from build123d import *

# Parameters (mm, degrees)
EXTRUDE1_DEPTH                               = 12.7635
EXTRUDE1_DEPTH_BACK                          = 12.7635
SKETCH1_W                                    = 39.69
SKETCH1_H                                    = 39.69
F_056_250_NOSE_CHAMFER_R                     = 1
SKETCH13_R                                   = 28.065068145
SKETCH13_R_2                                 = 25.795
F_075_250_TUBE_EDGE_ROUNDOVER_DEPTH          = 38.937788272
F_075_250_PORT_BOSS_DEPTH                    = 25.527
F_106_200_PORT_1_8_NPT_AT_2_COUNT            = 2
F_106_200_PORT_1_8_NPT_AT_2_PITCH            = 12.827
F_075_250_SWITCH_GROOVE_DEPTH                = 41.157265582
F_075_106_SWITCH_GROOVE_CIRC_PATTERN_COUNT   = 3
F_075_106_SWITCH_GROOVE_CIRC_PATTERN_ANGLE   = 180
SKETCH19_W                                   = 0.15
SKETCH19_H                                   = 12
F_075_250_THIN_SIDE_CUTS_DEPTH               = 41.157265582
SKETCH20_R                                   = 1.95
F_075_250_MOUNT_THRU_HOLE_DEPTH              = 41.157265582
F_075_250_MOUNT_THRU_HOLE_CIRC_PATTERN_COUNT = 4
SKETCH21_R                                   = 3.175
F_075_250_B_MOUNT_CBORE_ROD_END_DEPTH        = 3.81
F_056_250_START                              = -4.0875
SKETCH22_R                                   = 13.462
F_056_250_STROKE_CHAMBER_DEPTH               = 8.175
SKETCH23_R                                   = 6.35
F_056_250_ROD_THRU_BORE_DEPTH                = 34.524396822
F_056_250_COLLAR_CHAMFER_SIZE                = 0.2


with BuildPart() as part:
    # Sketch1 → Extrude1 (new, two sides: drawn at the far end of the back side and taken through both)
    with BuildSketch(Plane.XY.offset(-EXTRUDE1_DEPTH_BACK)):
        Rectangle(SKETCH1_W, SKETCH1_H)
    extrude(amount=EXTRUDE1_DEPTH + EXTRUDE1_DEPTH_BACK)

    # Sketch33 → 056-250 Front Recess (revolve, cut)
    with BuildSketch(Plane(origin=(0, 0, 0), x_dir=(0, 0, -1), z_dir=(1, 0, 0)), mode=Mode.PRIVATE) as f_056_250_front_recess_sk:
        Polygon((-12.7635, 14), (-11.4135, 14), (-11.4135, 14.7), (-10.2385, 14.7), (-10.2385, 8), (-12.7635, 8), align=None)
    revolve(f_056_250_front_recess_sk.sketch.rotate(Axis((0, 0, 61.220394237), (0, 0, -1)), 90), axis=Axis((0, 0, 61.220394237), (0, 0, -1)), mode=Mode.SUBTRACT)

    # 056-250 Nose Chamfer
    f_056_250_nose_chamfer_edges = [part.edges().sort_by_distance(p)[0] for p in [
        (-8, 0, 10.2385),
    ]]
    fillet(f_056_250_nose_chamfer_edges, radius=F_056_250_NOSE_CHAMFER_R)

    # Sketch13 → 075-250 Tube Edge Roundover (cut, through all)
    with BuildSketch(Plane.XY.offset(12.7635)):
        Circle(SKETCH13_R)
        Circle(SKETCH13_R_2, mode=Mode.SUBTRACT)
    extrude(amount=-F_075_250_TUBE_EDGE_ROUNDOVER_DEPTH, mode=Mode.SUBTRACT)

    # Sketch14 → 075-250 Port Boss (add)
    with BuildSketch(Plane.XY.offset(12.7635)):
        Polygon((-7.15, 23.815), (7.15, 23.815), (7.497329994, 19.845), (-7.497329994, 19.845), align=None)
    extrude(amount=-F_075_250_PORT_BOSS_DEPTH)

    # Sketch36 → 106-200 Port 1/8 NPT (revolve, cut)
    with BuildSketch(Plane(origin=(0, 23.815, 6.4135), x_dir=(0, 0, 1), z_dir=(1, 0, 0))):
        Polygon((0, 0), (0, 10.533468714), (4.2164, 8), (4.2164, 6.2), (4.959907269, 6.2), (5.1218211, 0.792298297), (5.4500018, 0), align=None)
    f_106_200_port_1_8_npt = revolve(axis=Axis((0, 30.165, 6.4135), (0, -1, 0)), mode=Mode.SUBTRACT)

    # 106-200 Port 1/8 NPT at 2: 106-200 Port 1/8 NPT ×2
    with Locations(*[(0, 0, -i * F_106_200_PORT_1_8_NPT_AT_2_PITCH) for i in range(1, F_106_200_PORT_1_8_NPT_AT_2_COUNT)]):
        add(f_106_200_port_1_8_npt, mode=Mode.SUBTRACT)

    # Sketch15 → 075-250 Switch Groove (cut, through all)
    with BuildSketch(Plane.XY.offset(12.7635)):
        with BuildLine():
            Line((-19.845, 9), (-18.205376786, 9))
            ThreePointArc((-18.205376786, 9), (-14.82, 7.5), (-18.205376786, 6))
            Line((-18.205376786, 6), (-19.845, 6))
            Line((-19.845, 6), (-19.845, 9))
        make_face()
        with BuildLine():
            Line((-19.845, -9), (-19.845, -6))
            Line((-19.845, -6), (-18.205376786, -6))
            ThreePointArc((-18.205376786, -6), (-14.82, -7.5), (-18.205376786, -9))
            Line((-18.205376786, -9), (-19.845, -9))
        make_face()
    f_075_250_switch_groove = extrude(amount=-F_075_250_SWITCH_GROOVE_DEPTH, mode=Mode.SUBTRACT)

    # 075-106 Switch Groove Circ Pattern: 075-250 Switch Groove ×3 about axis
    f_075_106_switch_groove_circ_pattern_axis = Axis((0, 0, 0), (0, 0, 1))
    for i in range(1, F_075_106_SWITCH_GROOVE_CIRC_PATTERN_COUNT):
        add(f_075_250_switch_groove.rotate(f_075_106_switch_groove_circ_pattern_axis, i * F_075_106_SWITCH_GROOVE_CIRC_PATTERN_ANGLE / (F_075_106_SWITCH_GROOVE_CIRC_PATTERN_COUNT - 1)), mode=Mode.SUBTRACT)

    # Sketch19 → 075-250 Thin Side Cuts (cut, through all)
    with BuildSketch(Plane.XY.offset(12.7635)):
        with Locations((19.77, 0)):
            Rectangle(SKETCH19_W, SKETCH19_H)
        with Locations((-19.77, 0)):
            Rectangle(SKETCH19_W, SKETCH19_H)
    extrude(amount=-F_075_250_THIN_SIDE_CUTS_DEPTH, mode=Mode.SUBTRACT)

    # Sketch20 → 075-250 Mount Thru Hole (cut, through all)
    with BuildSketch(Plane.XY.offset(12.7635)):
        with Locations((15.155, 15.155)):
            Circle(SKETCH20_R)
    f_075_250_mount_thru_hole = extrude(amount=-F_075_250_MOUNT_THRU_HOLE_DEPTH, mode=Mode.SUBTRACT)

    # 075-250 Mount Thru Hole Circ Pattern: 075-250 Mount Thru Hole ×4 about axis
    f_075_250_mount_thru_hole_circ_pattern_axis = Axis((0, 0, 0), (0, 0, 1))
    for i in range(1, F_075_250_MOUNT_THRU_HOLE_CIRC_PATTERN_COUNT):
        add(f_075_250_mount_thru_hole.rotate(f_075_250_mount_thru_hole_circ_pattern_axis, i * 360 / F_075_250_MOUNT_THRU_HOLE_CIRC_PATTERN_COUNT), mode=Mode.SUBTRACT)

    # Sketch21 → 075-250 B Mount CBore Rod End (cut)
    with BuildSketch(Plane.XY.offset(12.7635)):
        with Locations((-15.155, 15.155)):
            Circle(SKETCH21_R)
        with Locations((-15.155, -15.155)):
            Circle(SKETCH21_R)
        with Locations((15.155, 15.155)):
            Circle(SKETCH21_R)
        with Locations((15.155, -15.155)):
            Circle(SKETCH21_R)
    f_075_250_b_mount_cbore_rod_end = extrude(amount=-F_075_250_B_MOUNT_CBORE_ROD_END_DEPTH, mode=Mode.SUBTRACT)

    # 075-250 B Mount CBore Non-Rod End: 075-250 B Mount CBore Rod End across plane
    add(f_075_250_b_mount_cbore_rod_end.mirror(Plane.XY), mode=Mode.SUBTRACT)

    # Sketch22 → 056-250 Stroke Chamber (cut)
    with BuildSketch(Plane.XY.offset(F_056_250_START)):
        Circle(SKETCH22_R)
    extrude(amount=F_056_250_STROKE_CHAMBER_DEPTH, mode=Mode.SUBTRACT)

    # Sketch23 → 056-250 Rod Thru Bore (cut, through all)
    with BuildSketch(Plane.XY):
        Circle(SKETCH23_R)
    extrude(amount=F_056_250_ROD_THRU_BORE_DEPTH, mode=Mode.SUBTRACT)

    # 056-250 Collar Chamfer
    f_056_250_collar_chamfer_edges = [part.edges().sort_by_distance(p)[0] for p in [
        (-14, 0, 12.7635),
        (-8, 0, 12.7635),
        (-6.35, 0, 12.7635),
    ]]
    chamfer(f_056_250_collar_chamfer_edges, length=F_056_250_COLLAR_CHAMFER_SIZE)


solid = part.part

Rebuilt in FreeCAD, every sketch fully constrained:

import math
import FreeCAD as App
import Part
import Sketcher

V = App.Vector
Q = App.Units.Quantity


def edges_at(feature, points):
    """Names of the edges that pass closest to the given points."""
    edges = feature.Shape.Edges
    near = lambda p: min(range(len(edges)), key=lambda i: edges[i].distToShape(Part.Vertex(*p))[0])
    return sorted({f"Edge{near(p) + 1}" for p in points})

doc = App.newDocument("Part")
body = doc.addObject("PartDesign::Body", "Body")

sketch1 = doc.addObject("Sketcher::SketchObject", "Sketch")
body.addObject(sketch1)
sketch1.AttachmentSupport = (doc.XY_Plane, [""])
sketch1.MapMode = "FlatFace"
sketch1.addGeometry([
    Part.LineSegment(V(-19.845, 19.845, 0), V(-19.845, -19.845, 0)),
    Part.LineSegment(V(-19.845, -19.845, 0), V(19.845, -19.845, 0)),
    Part.LineSegment(V(19.845, -19.845, 0), V(19.845, 19.845, 0)),
    Part.LineSegment(V(19.845, 19.845, 0), V(-19.845, 19.845, 0)),
], False)
sketch1.addConstraint([
    Sketcher.Constraint("Coincident", 0, 2, 1, 1),
    Sketcher.Constraint("Coincident", 1, 2, 2, 1),
    Sketcher.Constraint("Coincident", 2, 2, 3, 1),
    Sketcher.Constraint("Coincident", 3, 2, 0, 1),
    Sketcher.Constraint("Vertical", 0),
    Sketcher.Constraint("Horizontal", 1),
    Sketcher.Constraint("Vertical", 2),
    Sketcher.Constraint("Horizontal", 3),
    Sketcher.Constraint("Symmetric", 0, 2, 2, 2, -1, 1),
    Sketcher.Constraint("Equal", 3, 0),
    Sketcher.Constraint("DistanceX", 1, 1, 1, 2, Q("39.69 mm")),
])
pad1 = doc.addObject("PartDesign::Pad", "Pad")
body.addObject(pad1)
pad1.Profile = sketch1
pad1.Type = "TwoLengths"
pad1.Length = 12.7635
pad1.Length2 = 12.7635

sketch2 = doc.addObject("Sketcher::SketchObject", "Sketch001")
body.addObject(sketch2)
sketch2.AttachmentSupport = (doc.YZ_Plane, [""])
sketch2.MapMode = "FlatFace"
sketch2.addGeometry([
    Part.LineSegment(V(14, 11.4135, 0), V(14, 12.7635, 0)),
    Part.LineSegment(V(14, 12.7635, 0), V(8, 12.7635, 0)),
    Part.LineSegment(V(8, 12.7635, 0), V(8, 10.2385, 0)),
    Part.LineSegment(V(8, 10.2385, 0), V(14.7, 10.2385, 0)),
    Part.LineSegment(V(14.7, 10.2385, 0), V(14.7, 11.4135, 0)),
    Part.LineSegment(V(14.7, 11.4135, 0), V(14, 11.4135, 0)),
], False)
sketch2.addConstraint([
    Sketcher.Constraint("Coincident", 0, 2, 1, 1),
    Sketcher.Constraint("Coincident", 1, 2, 2, 1),
    Sketcher.Constraint("Coincident", 2, 2, 3, 1),
    Sketcher.Constraint("Coincident", 3, 2, 4, 1),
    Sketcher.Constraint("Coincident", 4, 2, 5, 1),
    Sketcher.Constraint("Coincident", 5, 2, 0, 1),
    Sketcher.Constraint("Vertical", 0),
    Sketcher.Constraint("Horizontal", 1),
    Sketcher.Constraint("Vertical", 2),
    Sketcher.Constraint("Horizontal", 3),
    Sketcher.Constraint("Vertical", 4),
    Sketcher.Constraint("Horizontal", 5),
    Sketcher.Constraint("DistanceX", 1, 2, 1, 1, Q("6 mm")),
    Sketcher.Constraint("DistanceX", 3, 1, 3, 2, Q("6.7 mm")),
    Sketcher.Constraint("DistanceX", -1, 1, 0, 2, Q("14 mm")),
    Sketcher.Constraint("DistanceY", 0, 1, 0, 2, Q("1.35 mm")),
    Sketcher.Constraint("DistanceY", 2, 2, 2, 1, Q("2.525 mm")),
    Sketcher.Constraint("DistanceY", -1, 1, 0, 2, Q("12.7635 mm")),
])
groove = doc.addObject("PartDesign::Groove", "Groove")
body.addObject(groove)
groove.Profile = sketch2
groove.ReferenceAxis = (sketch2, ["V_Axis"])
groove.Angle = 360
doc.recompute()

fillet = doc.addObject("PartDesign::Fillet", "Fillet")
body.addObject(fillet)
fillet.Base = (groove, edges_at(groove, [(-8, 0, 10.239)]))
fillet.Radius = 1

sketch3 = doc.addObject("Sketcher::SketchObject", "Sketch002")
body.addObject(sketch3)
sketch3.AttachmentSupport = (doc.XY_Plane, [""])
sketch3.MapMode = "FlatFace"
sketch3.AttachmentOffset = App.Placement(V(0, 0, 12.7635), App.Rotation())
sketch3.addGeometry([
    Part.Circle(V(0, 0, 0), V(0, 0, 1), 28.065068),
    Part.Circle(V(0, 0, 0), V(0, 0, 1), 25.795),
], False)
sketch3.addConstraint([
    Sketcher.Constraint("Coincident", 0, 3, -1, 1),
    Sketcher.Constraint("Coincident", 1, 3, -1, 1),
    Sketcher.Constraint("Diameter", 1, Q("51.59 mm")),
    Sketcher.Constraint("Diameter", 0, Q("56.130136 mm")),
])
pocket1 = doc.addObject("PartDesign::Pocket", "Pocket")
body.addObject(pocket1)
pocket1.Profile = sketch3
pocket1.Type = "ThroughAll"

sketch4 = doc.addObject("Sketcher::SketchObject", "Sketch003")
body.addObject(sketch4)
sketch4.AttachmentSupport = (doc.XY_Plane, [""])
sketch4.MapMode = "FlatFace"
sketch4.AttachmentOffset = App.Placement(V(0, 0, 12.7635), App.Rotation())
sketch4.addGeometry([
    Part.LineSegment(V(7.15, 23.815, 0), V(-7.15, 23.815, 0)),
    Part.LineSegment(V(-7.15, 23.815, 0), V(-7.49733, 19.845, 0)),
    Part.LineSegment(V(-7.49733, 19.845, 0), V(7.49733, 19.845, 0)),
    Part.LineSegment(V(7.49733, 19.845, 0), V(7.15, 23.815, 0)),
], False)
sketch4.addConstraint([
    Sketcher.Constraint("Coincident", 0, 2, 1, 1),
    Sketcher.Constraint("Coincident", 1, 2, 2, 1),
    Sketcher.Constraint("Coincident", 2, 2, 3, 1),
    Sketcher.Constraint("Coincident", 3, 2, 0, 1),
    Sketcher.Constraint("Horizontal", 0),
    Sketcher.Constraint("Horizontal", 2),
    Sketcher.Constraint("Equal", 1, 3),
    Sketcher.Constraint("Angle", 1, Q("-95 deg")),
    Sketcher.Constraint("DistanceX", 0, 2, 0, 1, Q("14.3 mm")),
    Sketcher.Constraint("DistanceX", 0, 2, -1, 1, Q("7.15 mm")),
    Sketcher.Constraint("DistanceY", 1, 2, 0, 2, Q("3.97 mm")),
    Sketcher.Constraint("DistanceY", -1, 1, 0, 2, Q("23.815 mm")),
])
pad2 = doc.addObject("PartDesign::Pad", "Pad001")
body.addObject(pad2)
pad2.Profile = sketch4
pad2.Length = 25.527
pad2.Reversed = True

sketch5 = doc.addObject("Sketcher::SketchObject", "Sketch004")
body.addObject(sketch5)
sketch5.AttachmentSupport = (doc.YZ_Plane, [""])
sketch5.MapMode = "FlatFace"
sketch5.addGeometry([
    Part.LineSegment(V(13.281531, 6.4135, 0), V(23.815, 6.4135, 0)),
    Part.LineSegment(V(23.815, 6.4135, 0), V(23.815, 11.863502, 0)),
    Part.LineSegment(V(23.815, 11.863502, 0), V(23.022702, 11.535321, 0)),
    Part.LineSegment(V(23.022702, 11.535321, 0), V(17.615, 11.373407, 0)),
    Part.LineSegment(V(17.615, 11.373407, 0), V(17.615, 10.6299, 0)),
    Part.LineSegment(V(17.615, 10.6299, 0), V(15.815, 10.6299, 0)),
    Part.LineSegment(V(15.815, 10.6299, 0), V(13.281531, 6.4135, 0)),
], False)
sketch5.addGeometry(Part.LineSegment(V(23.815, 6.4135, 0), V(13.281531, 6.4135, 0)), True)
sketch5.addConstraint([
    Sketcher.Constraint("Coincident", 0, 2, 1, 1),
    Sketcher.Constraint("Coincident", 1, 2, 2, 1),
    Sketcher.Constraint("Coincident", 2, 2, 3, 1),
    Sketcher.Constraint("Coincident", 3, 2, 4, 1),
    Sketcher.Constraint("Coincident", 4, 2, 5, 1),
    Sketcher.Constraint("Coincident", 5, 2, 6, 1),
    Sketcher.Constraint("Coincident", 6, 2, 0, 1),
    Sketcher.Constraint("Horizontal", 0),
    Sketcher.Constraint("Vertical", 1),
    Sketcher.Constraint("Vertical", 4),
    Sketcher.Constraint("Horizontal", 5),
    Sketcher.Constraint("Horizontal", 7),
    Sketcher.Constraint("Coincident", 7, 1, 0, 2),
    Sketcher.Constraint("Equal", 0, 7),
    Sketcher.Constraint("Angle", 6, Q("-121 deg")),
    Sketcher.Constraint("DistanceX", 5, 2, 5, 1, Q("1.8 mm")),
    Sketcher.Constraint("Angle", 2, Q("-157.5 deg")),
    Sketcher.Constraint("DistanceX", 5, 2, 1, 2, Q("8 mm")),
    Sketcher.Constraint("DistanceY", 1, 1, 1, 2, Q("5.450002 mm")),
    Sketcher.Constraint("DistanceX", -1, 1, 0, 2, Q("23.815 mm")),
    Sketcher.Constraint("DistanceX", 0, 1, 0, 2, Q("10.533469 mm")),
    Sketcher.Constraint("DistanceY", -1, 1, 0, 2, Q("6.4135 mm")),
    Sketcher.Constraint("DistanceX", -1, 1, 2, 2, Q("23.022702 mm")),
    Sketcher.Constraint("DistanceY", 4, 2, 4, 1, Q("0.743507 mm")),
])
groove2 = doc.addObject("PartDesign::Groove", "Groove001")
body.addObject(groove2)
groove2.Profile = sketch5
groove2.ReferenceAxis = (sketch5, ["Axis0"])
groove2.Angle = 360
doc.recompute()

linearpattern = doc.addObject("PartDesign::LinearPattern", "LinearPattern")
body.addObject(linearpattern)
linearpattern.Originals = [groove2]
linearpattern.Direction = (doc.Z_Axis, [""])
linearpattern.Mode = "offset"
linearpattern.Offset = 12.827
linearpattern.Occurrences = 2
linearpattern.Reversed = True
body.Tip = linearpattern

sketch6 = doc.addObject("Sketcher::SketchObject", "Sketch005")
body.addObject(sketch6)
sketch6.AttachmentSupport = (doc.XY_Plane, [""])
sketch6.MapMode = "FlatFace"
sketch6.AttachmentOffset = App.Placement(V(0, 0, 12.7635), App.Rotation())
sketch6.addGeometry([
    Part.LineSegment(V(-18.205377, 9, 0), V(-19.845, 9, 0)),
    Part.LineSegment(V(-19.845, 9, 0), V(-19.845, 6, 0)),
    Part.LineSegment(V(-19.845, 6, 0), V(-18.205377, 6, 0)),
    Part.ArcOfCircle(Part.Circle(V(-16.845, 7.5, 0), V(0, 0, 1), 2.025), math.radians(-132.205446), math.radians(132.205446)),
    Part.LineSegment(V(-19.845, -6, 0), V(-19.845, -9, 0)),
    Part.LineSegment(V(-19.845, -9, 0), V(-18.205377, -9, 0)),
    Part.ArcOfCircle(Part.Circle(V(-16.845, -7.5, 0), V(0, 0, 1), 2.025), math.radians(-132.205446), math.radians(132.205446)),
    Part.LineSegment(V(-18.205377, -6, 0), V(-19.845, -6, 0)),
], False)
sketch6.addConstraint([
    Sketcher.Constraint("Coincident", 0, 2, 1, 1),
    Sketcher.Constraint("Coincident", 1, 2, 2, 1),
    Sketcher.Constraint("Coincident", 2, 2, 3, 1),
    Sketcher.Constraint("Coincident", 3, 2, 0, 1),
    Sketcher.Constraint("Coincident", 4, 2, 5, 1),
    Sketcher.Constraint("Coincident", 5, 2, 6, 1),
    Sketcher.Constraint("Coincident", 6, 2, 7, 1),
    Sketcher.Constraint("Coincident", 7, 2, 4, 1),
    Sketcher.Constraint("Horizontal", 0),
    Sketcher.Constraint("Vertical", 1),
    Sketcher.Constraint("Horizontal", 2),
    Sketcher.Constraint("Vertical", 4),
    Sketcher.Constraint("Horizontal", 5),
    Sketcher.Constraint("Horizontal", 7),
    Sketcher.Constraint("Equal", 3, 6),
    Sketcher.Constraint("Symmetric", 3, 3, 6, 3, -1),
    Sketcher.Constraint("Symmetric", 0, 2, 4, 2, -1),
    Sketcher.Constraint("Vertical", 2, 2, 3, 2),
    Sketcher.Constraint("Vertical", 5, 2, 6, 2),
    Sketcher.Constraint("DistanceY", 1, 2, 1, 1, Q("3 mm")),
    Sketcher.Constraint("DistanceY", -1, 1, 0, 2, Q("9 mm")),
    Sketcher.Constraint("Radius", 3, Q("2.025 mm")),
    Sketcher.Constraint("DistanceX", 0, 2, 3, 3, Q("3 mm")),
    Sketcher.Constraint("DistanceX", 3, 3, -1, 1, Q("16.845 mm")),
])
pocket2 = doc.addObject("PartDesign::Pocket", "Pocket001")
body.addObject(pocket2)
pocket2.Profile = sketch6
pocket2.Type = "ThroughAll"
doc.recompute()

polarpattern = doc.addObject("PartDesign::PolarPattern", "PolarPattern")
body.addObject(polarpattern)
polarpattern.Originals = [pocket2]
polarpattern.Axis = (doc.Z_Axis, [""])
polarpattern.Angle = 180
polarpattern.Occurrences = 3
body.Tip = polarpattern

sketch7 = doc.addObject("Sketcher::SketchObject", "Sketch006")
body.addObject(sketch7)
sketch7.AttachmentSupport = (doc.XY_Plane, [""])
sketch7.MapMode = "FlatFace"
sketch7.AttachmentOffset = App.Placement(V(0, 0, 12.7635), App.Rotation())
sketch7.addGeometry([
    Part.LineSegment(V(19.695, 6, 0), V(19.695, -6, 0)),
    Part.LineSegment(V(19.695, -6, 0), V(19.845, -6, 0)),
    Part.LineSegment(V(19.845, -6, 0), V(19.845, 6, 0)),
    Part.LineSegment(V(19.845, 6, 0), V(19.695, 6, 0)),
    Part.LineSegment(V(-19.845, 6, 0), V(-19.845, -6, 0)),
    Part.LineSegment(V(-19.845, -6, 0), V(-19.695, -6, 0)),
    Part.LineSegment(V(-19.695, -6, 0), V(-19.695, 6, 0)),
    Part.LineSegment(V(-19.695, 6, 0), V(-19.845, 6, 0)),
], False)
sketch7.addConstraint([
    Sketcher.Constraint("Coincident", 0, 2, 1, 1),
    Sketcher.Constraint("Coincident", 1, 2, 2, 1),
    Sketcher.Constraint("Coincident", 2, 2, 3, 1),
    Sketcher.Constraint("Coincident", 3, 2, 0, 1),
    Sketcher.Constraint("Coincident", 4, 2, 5, 1),
    Sketcher.Constraint("Coincident", 5, 2, 6, 1),
    Sketcher.Constraint("Coincident", 6, 2, 7, 1),
    Sketcher.Constraint("Coincident", 7, 2, 4, 1),
    Sketcher.Constraint("Vertical", 0),
    Sketcher.Constraint("Horizontal", 1),
    Sketcher.Constraint("Vertical", 2),
    Sketcher.Constraint("Horizontal", 3),
    Sketcher.Constraint("Vertical", 4),
    Sketcher.Constraint("Horizontal", 5),
    Sketcher.Constraint("Vertical", 6),
    Sketcher.Constraint("Horizontal", 7),
    Sketcher.Constraint("Symmetric", 2, 2, 4, 2, -1, 1),
    Sketcher.Constraint("Symmetric", 0, 2, 6, 2, -1, 1),
    Sketcher.Constraint("Horizontal", 1, 2, 4, 2),
    Sketcher.Constraint("DistanceY", 0, 2, 0, 1, Q("12 mm")),
    Sketcher.Constraint("DistanceX", 1, 1, 1, 2, Q("0.15 mm")),
    Sketcher.Constraint("DistanceX", 4, 2, 0, 2, Q("39.54 mm")),
])
pocket3 = doc.addObject("PartDesign::Pocket", "Pocket002")
body.addObject(pocket3)
pocket3.Profile = sketch7
pocket3.Type = "ThroughAll"

sketch8 = doc.addObject("Sketcher::SketchObject", "Sketch007")
body.addObject(sketch8)
sketch8.AttachmentSupport = (doc.XY_Plane, [""])
sketch8.MapMode = "FlatFace"
sketch8.AttachmentOffset = App.Placement(V(0, 0, 12.7635), App.Rotation())
sketch8.addGeometry(Part.Circle(V(15.155, 15.155, 0), V(0, 0, 1), 1.95), False)
sketch8.addConstraint([
    Sketcher.Constraint("Diameter", 0, Q("3.9 mm")),
    Sketcher.Constraint("DistanceX", -1, 1, 0, 3, Q("15.155 mm")),
    Sketcher.Constraint("DistanceY", -1, 1, 0, 3, Q("15.155 mm")),
])
pocket4 = doc.addObject("PartDesign::Pocket", "Pocket003")
body.addObject(pocket4)
pocket4.Profile = sketch8
pocket4.Type = "ThroughAll"
doc.recompute()

polarpattern2 = doc.addObject("PartDesign::PolarPattern", "PolarPattern001")
body.addObject(polarpattern2)
polarpattern2.Originals = [pocket4]
polarpattern2.Axis = (doc.Z_Axis, [""])
polarpattern2.Angle = 360
polarpattern2.Occurrences = 4
body.Tip = polarpattern2

sketch9 = doc.addObject("Sketcher::SketchObject", "Sketch008")
body.addObject(sketch9)
sketch9.AttachmentSupport = (doc.XY_Plane, [""])
sketch9.MapMode = "FlatFace"
sketch9.AttachmentOffset = App.Placement(V(0, 0, 12.7635), App.Rotation())
sketch9.addGeometry([
    Part.Circle(V(-15.155, 15.155, 0), V(0, 0, 1), 3.175),
    Part.Circle(V(-15.155, -15.155, 0), V(0, 0, 1), 3.175),
    Part.Circle(V(15.155, 15.155, 0), V(0, 0, 1), 3.175),
    Part.Circle(V(15.155, -15.155, 0), V(0, 0, 1), 3.175),
], False)
sketch9.addConstraint([
    Sketcher.Constraint("Equal", 0, 1),
    Sketcher.Constraint("Equal", 1, 2),
    Sketcher.Constraint("Equal", 2, 3),
    Sketcher.Constraint("Symmetric", 1, 3, 2, 3, -1, 1),
    Sketcher.Constraint("Symmetric", 0, 3, 3, 3, -1, 1),
    Sketcher.Constraint("Symmetric", 0, 3, 2, 3, -2),
    Sketcher.Constraint("Diameter", 0, Q("6.35 mm")),
    Sketcher.Constraint("DistanceY", 1, 3, 0, 3, Q("30.31 mm")),
    Sketcher.Constraint("DistanceX", 0, 3, 2, 3, Q("30.31 mm")),
])
pocket5 = doc.addObject("PartDesign::Pocket", "Pocket004")
body.addObject(pocket5)
pocket5.Profile = sketch9
pocket5.Length = 3.81
doc.recompute()

mirrored = doc.addObject("PartDesign::Mirrored", "Mirrored")
body.addObject(mirrored)
mirrored.Originals = [pocket5]
mirrored.MirrorPlane = (doc.XY_Plane, [""])
body.Tip = mirrored

sketch10 = doc.addObject("Sketcher::SketchObject", "Sketch009")
body.addObject(sketch10)
sketch10.AttachmentSupport = (doc.XY_Plane, [""])
sketch10.MapMode = "FlatFace"
sketch10.AttachmentOffset = App.Placement(V(0, 0, -4.0875), App.Rotation())
sketch10.addGeometry(Part.Circle(V(0, 0, 0), V(0, 0, 1), 13.462), False)
sketch10.addConstraint([
    Sketcher.Constraint("Coincident", 0, 3, -1, 1),
    Sketcher.Constraint("Diameter", 0, Q("26.924 mm")),
])
pocket6 = doc.addObject("PartDesign::Pocket", "Pocket005")
body.addObject(pocket6)
pocket6.Profile = sketch10
pocket6.Length = 8.175
pocket6.Reversed = True

sketch11 = doc.addObject("Sketcher::SketchObject", "Sketch010")
body.addObject(sketch11)
sketch11.AttachmentSupport = (doc.XY_Plane, [""])
sketch11.MapMode = "FlatFace"
sketch11.addGeometry(Part.Circle(V(0, 0, 0), V(0, 0, 1), 6.35), False)
sketch11.addConstraint([
    Sketcher.Constraint("Coincident", 0, 3, -1, 1),
    Sketcher.Constraint("Diameter", 0, Q("12.7 mm")),
])
pocket7 = doc.addObject("PartDesign::Pocket", "Pocket006")
body.addObject(pocket7)
pocket7.Profile = sketch11
pocket7.Type = "ThroughAll"
pocket7.Reversed = True
doc.recompute()

chamfer = doc.addObject("PartDesign::Chamfer", "Chamfer")
body.addObject(chamfer)
chamfer.Base = (pocket7, edges_at(pocket7, [(-14, 0, 12.764), (-8, 0, 12.764), (-6.35, 0, 12.764)]))
chamfer.Size = 0.2

doc.recompute()
